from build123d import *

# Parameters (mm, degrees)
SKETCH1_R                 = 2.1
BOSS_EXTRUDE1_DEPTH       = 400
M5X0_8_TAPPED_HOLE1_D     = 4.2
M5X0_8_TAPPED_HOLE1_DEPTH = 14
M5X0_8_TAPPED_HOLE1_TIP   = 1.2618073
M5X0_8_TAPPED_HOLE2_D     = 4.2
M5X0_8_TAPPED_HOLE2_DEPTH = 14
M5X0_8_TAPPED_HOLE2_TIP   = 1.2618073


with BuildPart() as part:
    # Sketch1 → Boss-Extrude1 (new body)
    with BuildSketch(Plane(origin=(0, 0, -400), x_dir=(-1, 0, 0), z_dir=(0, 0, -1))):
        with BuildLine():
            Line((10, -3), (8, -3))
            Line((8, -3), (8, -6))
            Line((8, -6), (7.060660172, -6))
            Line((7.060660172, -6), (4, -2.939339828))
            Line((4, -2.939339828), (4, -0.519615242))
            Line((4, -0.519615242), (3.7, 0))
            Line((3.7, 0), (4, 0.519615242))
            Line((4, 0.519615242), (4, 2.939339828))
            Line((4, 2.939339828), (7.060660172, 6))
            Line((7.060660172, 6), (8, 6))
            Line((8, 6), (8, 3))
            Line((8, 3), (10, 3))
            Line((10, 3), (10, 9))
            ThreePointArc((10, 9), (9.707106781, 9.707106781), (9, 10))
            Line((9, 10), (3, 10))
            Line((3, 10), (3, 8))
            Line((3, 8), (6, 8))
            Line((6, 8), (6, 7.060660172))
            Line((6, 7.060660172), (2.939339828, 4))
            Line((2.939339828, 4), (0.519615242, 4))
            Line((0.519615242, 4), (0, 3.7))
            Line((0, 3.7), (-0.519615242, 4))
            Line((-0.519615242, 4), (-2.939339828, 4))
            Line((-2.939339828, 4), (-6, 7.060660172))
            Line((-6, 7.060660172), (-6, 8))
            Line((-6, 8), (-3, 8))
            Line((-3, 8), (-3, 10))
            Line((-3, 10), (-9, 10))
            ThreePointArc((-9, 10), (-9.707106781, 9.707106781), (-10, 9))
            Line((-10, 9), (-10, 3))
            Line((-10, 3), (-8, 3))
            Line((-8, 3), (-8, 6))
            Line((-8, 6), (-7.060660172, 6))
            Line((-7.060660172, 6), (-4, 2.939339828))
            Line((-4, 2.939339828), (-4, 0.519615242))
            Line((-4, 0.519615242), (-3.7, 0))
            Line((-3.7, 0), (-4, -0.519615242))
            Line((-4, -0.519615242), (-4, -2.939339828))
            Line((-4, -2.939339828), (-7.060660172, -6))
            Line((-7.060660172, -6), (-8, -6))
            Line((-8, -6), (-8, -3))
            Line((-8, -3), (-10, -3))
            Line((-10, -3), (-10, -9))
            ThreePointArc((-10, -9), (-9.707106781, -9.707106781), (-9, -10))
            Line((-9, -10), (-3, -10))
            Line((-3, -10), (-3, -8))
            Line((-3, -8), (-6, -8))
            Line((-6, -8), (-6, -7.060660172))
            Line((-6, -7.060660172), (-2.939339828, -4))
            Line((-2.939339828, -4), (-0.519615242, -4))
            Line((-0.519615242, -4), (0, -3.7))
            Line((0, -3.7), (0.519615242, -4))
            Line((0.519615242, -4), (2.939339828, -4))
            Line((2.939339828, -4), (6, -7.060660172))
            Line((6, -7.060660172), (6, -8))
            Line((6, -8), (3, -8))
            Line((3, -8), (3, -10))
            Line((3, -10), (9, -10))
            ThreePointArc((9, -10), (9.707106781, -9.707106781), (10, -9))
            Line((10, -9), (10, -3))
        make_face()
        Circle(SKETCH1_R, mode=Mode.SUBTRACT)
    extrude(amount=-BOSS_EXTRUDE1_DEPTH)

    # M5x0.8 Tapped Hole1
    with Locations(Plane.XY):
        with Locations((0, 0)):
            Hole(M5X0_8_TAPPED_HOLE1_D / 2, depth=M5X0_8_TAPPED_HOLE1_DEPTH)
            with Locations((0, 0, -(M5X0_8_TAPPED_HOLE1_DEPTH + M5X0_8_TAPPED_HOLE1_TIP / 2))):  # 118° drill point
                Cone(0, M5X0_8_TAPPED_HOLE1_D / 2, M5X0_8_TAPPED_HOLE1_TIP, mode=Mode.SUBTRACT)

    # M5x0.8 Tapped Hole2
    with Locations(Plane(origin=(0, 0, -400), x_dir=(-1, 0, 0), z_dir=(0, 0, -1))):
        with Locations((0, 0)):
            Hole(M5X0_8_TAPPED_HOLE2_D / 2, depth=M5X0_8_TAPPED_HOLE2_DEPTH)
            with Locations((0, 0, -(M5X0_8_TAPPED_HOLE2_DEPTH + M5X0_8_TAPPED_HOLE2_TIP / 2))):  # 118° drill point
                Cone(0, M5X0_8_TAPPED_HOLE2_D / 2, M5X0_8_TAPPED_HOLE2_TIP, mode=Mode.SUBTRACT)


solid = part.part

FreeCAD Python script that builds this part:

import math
import FreeCAD as App
import Part
import Sketcher
from FreeCAD import Vector
Q = App.Units.Quantity

doc = App.newDocument("Part")
params = doc.addObject("Spreadsheet::Sheet", "Params")
for row, (alias, value) in enumerate([
    ("sketch1_radius", "1 mm"),
    ("sketch1_diameter", "4.2 mm"),
    ("sketch1_width", "2 mm"),
    ("sketch1_width2", "6 mm"),
    ("sketch1_width3", "3 mm"),
    ("pad1_length", "400 mm"),
    ("sketch2_diameter", "4.2 mm"),
    ("hole_diameter", "4.2 mm"),
    ("hole_depth", "14 mm"),
    ("sketch3_diameter", "4.2 mm"),
    ("hole2_diameter", "4.2 mm"),
    ("hole2_depth", "14 mm"),
], start=1):
    params.set(f"A{row}", alias)
    params.set(f"B{row}", "=" + value)
    params.setAlias(f"B{row}", alias)

body = doc.addObject("PartDesign::Body", "Body")

sketch1 = body.newObject("Sketcher::SketchObject", "Sketch")
sketch1.AttachmentSupport = (doc.getObject("XY_Plane"), [""])
sketch1.MapMode = "FlatFace"
sketch1.AttachmentOffset = App.Placement(Vector(0, 0, -400), App.Rotation())
sketch1.addGeometry([
    Part.LineSegment(Vector(-10, -3, 0), Vector(-8, -3, 0)),
    Part.LineSegment(Vector(-8, -3, 0), Vector(-8, -6, 0)),
    Part.LineSegment(Vector(-8, -6, 0), Vector(-7.06066, -6, 0)),
    Part.LineSegment(Vector(-7.06066, -6, 0), Vector(-4, -2.93934, 0)),
    Part.LineSegment(Vector(-4, -2.93934, 0), Vector(-4, -0.519615, 0)),
    Part.LineSegment(Vector(-4, -0.519615, 0), Vector(-3.7, 0, 0)),
    Part.LineSegment(Vector(-3.7, 0, 0), Vector(-4, 0.519615, 0)),
    Part.LineSegment(Vector(-4, 0.519615, 0), Vector(-4, 2.93934, 0)),
    Part.LineSegment(Vector(-4, 2.93934, 0), Vector(-7.06066, 6, 0)),
    Part.LineSegment(Vector(-7.06066, 6, 0), Vector(-8, 6, 0)),
    Part.LineSegment(Vector(-8, 6, 0), Vector(-8, 3, 0)),
    Part.LineSegment(Vector(-8, 3, 0), Vector(-10, 3, 0)),
    Part.LineSegment(Vector(-10, 3, 0), Vector(-10, 9, 0)),
    Part.ArcOfCircle(Part.Circle(Vector(-9, 9, 0), Vector(0, 0, 1), 1), math.radians(90), math.radians(180)),
    Part.LineSegment(Vector(-9, 10, 0), Vector(-3, 10, 0)),
    Part.LineSegment(Vector(-3, 10, 0), Vector(-3, 8, 0)),
    Part.LineSegment(Vector(-3, 8, 0), Vector(-6, 8, 0)),
    Part.LineSegment(Vector(-6, 8, 0), Vector(-6, 7.06066, 0)),
    Part.LineSegment(Vector(-6, 7.06066, 0), Vector(-2.93934, 4, 0)),
    Part.LineSegment(Vector(-2.93934, 4, 0), Vector(-0.519615, 4, 0)),
    Part.LineSegment(Vector(-0.519615, 4, 0), Vector(0, 3.7, 0)),
    Part.LineSegment(Vector(0, 3.7, 0), Vector(0.519615, 4, 0)),
    Part.LineSegment(Vector(0.519615, 4, 0), Vector(2.93934, 4, 0)),
    Part.LineSegment(Vector(2.93934, 4, 0), Vector(6, 7.06066, 0)),
    Part.LineSegment(Vector(6, 7.06066, 0), Vector(6, 8, 0)),
    Part.LineSegment(Vector(6, 8, 0), Vector(3, 8, 0)),
    Part.LineSegment(Vector(3, 8, 0), Vector(3, 10, 0)),
    Part.LineSegment(Vector(3, 10, 0), Vector(9, 10, 0)),
    Part.ArcOfCircle(Part.Circle(Vector(9, 9, 0), Vector(0, 0, 1), 1), math.radians(0), math.radians(90)),
    Part.LineSegment(Vector(10, 9, 0), Vector(10, 3, 0)),
    Part.LineSegment(Vector(10, 3, 0), Vector(8, 3, 0)),
    Part.LineSegment(Vector(8, 3, 0), Vector(8, 6, 0)),
    Part.LineSegment(Vector(8, 6, 0), Vector(7.06066, 6, 0)),
    Part.LineSegment(Vector(7.06066, 6, 0), Vector(4, 2.93934, 0)),
    Part.LineSegment(Vector(4, 2.93934, 0), Vector(4, 0.519615, 0)),
    Part.LineSegment(Vector(4, 0.519615, 0), Vector(3.7, 0, 0)),
    Part.LineSegment(Vector(3.7, 0, 0), Vector(4, -0.519615, 0)),
    Part.LineSegment(Vector(4, -0.519615, 0), Vector(4, -2.93934, 0)),
    Part.LineSegment(Vector(4, -2.93934, 0), Vector(7.06066, -6, 0)),
    Part.LineSegment(Vector(7.06066, -6, 0), Vector(8, -6, 0)),
    Part.LineSegment(Vector(8, -6, 0), Vector(8, -3, 0)),
    Part.LineSegment(Vector(8, -3, 0), Vector(10, -3, 0)),
    Part.LineSegment(Vector(10, -3, 0), Vector(10, -9, 0)),
    Part.ArcOfCircle(Part.Circle(Vector(9, -9, 0), Vector(0, 0, 1), 1), math.radians(-90), math.radians(0)),
    Part.LineSegment(Vector(9, -10, 0), Vector(3, -10, 0)),
    Part.LineSegment(Vector(3, -10, 0), Vector(3, -8, 0)),
    Part.LineSegment(Vector(3, -8, 0), Vector(6, -8, 0)),
    Part.LineSegment(Vector(6, -8, 0), Vector(6, -7.06066, 0)),
    Part.LineSegment(Vector(6, -7.06066, 0), Vector(2.93934, -4, 0)),
    Part.LineSegment(Vector(2.93934, -4, 0), Vector(0.519615, -4, 0)),
    Part.LineSegment(Vector(0.519615, -4, 0), Vector(0, -3.7, 0)),
    Part.LineSegment(Vector(0, -3.7, 0), Vector(-0.519615, -4, 0)),
    Part.LineSegment(Vector(-0.519615, -4, 0), Vector(-2.93934, -4, 0)),
    Part.LineSegment(Vector(-2.93934, -4, 0), Vector(-6, -7.06066, 0)),
    Part.LineSegment(Vector(-6, -7.06066, 0), Vector(-6, -8, 0)),
    Part.LineSegment(Vector(-6, -8, 0), Vector(-3, -8, 0)),
    Part.LineSegment(Vector(-3, -8, 0), Vector(-3, -10, 0)),
    Part.LineSegment(Vector(-3, -10, 0), Vector(-9, -10, 0)),
    Part.ArcOfCircle(Part.Circle(Vector(-9, -9, 0), Vector(0, 0, 1), 1), math.radians(-180), math.radians(-90)),
    Part.LineSegment(Vector(-10, -9, 0), Vector(-10, -3, 0)),
    Part.Circle(Vector(0, 0, 0), Vector(0, 0, 1), 2.1),
], False)
sketch1.addConstraint([
    Sketcher.Constraint("Coincident", 0, 2, 1, 1),
    Sketcher.Constraint("Coincident", 1, 2, 2, 1),
    Sketcher.Constraint("Coincident", 2, 2, 3, 1),
    Sketcher.Constraint("Coincident", 3, 2, 4, 1),
    Sketcher.Constraint("Coincident", 4, 2, 5, 1),
    Sketcher.Constraint("Coincident", 5, 2, 6, 1),
    Sketcher.Constraint("Coincident", 6, 2, 7, 1),
    Sketcher.Constraint("Coincident", 7, 2, 8, 1),
    Sketcher.Constraint("Coincident", 8, 2, 9, 1),
    Sketcher.Constraint("Coincident", 9, 2, 10, 1),
    Sketcher.Constraint("Coincident", 10, 2, 11, 1),
    Sketcher.Constraint("Coincident", 11, 2, 12, 1),
    Sketcher.Constraint("Tangent", 12, 2, 13, 2),
    Sketcher.Constraint("Tangent", 13, 1, 14, 1),
    Sketcher.Constraint("Coincident", 14, 2, 15, 1),
    Sketcher.Constraint("Coincident", 15, 2, 16, 1),
    Sketcher.Constraint("Coincident", 16, 2, 17, 1),
    Sketcher.Constraint("Coincident", 17, 2, 18, 1),
    Sketcher.Constraint("Coincident", 18, 2, 19, 1),
    Sketcher.Constraint("Coincident", 19, 2, 20, 1),
    Sketcher.Constraint("Coincident", 20, 2, 21, 1),
    Sketcher.Constraint("Coincident", 21, 2, 22, 1),
    Sketcher.Constraint("Coincident", 22, 2, 23, 1),
    Sketcher.Constraint("Coincident", 23, 2, 24, 1),
    Sketcher.Constraint("Coincident", 24, 2, 25, 1),
    Sketcher.Constraint("Coincident", 25, 2, 26, 1),
    Sketcher.Constraint("Coincident", 26, 2, 27, 1),
    Sketcher.Constraint("Tangent", 27, 2, 28, 2),
    Sketcher.Constraint("Tangent", 28, 1, 29, 1),
    Sketcher.Constraint("Coincident", 29, 2, 30, 1),
    Sketcher.Constraint("Coincident", 30, 2, 31, 1),
    Sketcher.Constraint("Coincident", 31, 2, 32, 1),
    Sketcher.Constraint("Coincident", 32, 2, 33, 1),
    Sketcher.Constraint("Coincident", 33, 2, 34, 1),
    Sketcher.Constraint("Coincident", 34, 2, 35, 1),
    Sketcher.Constraint("Coincident", 35, 2, 36, 1),
    Sketcher.Constraint("Coincident", 36, 2, 37, 1),
    Sketcher.Constraint("Coincident", 37, 2, 38, 1),
    Sketcher.Constraint("Coincident", 38, 2, 39, 1),
    Sketcher.Constraint("Coincident", 39, 2, 40, 1),
    Sketcher.Constraint("Coincident", 40, 2, 41, 1),
    Sketcher.Constraint("Coincident", 41, 2, 42, 1),
    Sketcher.Constraint("Tangent", 42, 2, 43, 2),
    Sketcher.Constraint("Tangent", 43, 1, 44, 1),
    Sketcher.Constraint("Coincident", 44, 2, 45, 1),
    Sketcher.Constraint("Coincident", 45, 2, 46, 1),
    Sketcher.Constraint("Coincident", 46, 2, 47, 1),
    Sketcher.Constraint("Coincident", 47, 2, 48, 1),
    Sketcher.Constraint("Coincident", 48, 2, 49, 1),
    Sketcher.Constraint("Coincident", 49, 2, 50, 1),
    Sketcher.Constraint("Coincident", 50, 2, 51, 1),
    Sketcher.Constraint("Coincident", 51, 2, 52, 1),
    Sketcher.Constraint("Coincident", 52, 2, 53, 1),
    Sketcher.Constraint("Coincident", 53, 2, 54, 1),
    Sketcher.Constraint("Coincident", 54, 2, 55, 1),
    Sketcher.Constraint("Coincident", 55, 2, 56, 1),
    Sketcher.Constraint("Coincident", 56, 2, 57, 1),
    Sketcher.Constraint("Tangent", 57, 2, 58, 2),
    Sketcher.Constraint("Tangent", 58, 1, 59, 1),
    Sketcher.Constraint("Coincident", 59, 2, 0, 1),
    Sketcher.Constraint("Horizontal", 0),
    Sketcher.Constraint("Vertical", 1),
    Sketcher.Constraint("Horizontal", 2),
    Sketcher.Constraint("Vertical", 4),
    Sketcher.Constraint("Vertical", 7),
    Sketcher.Constraint("Horizontal", 9),
    Sketcher.Constraint("Vertical", 10),
    Sketcher.Constraint("Horizontal", 11),
    Sketcher.Constraint("Vertical", 12),
    Sketcher.Constraint("Horizontal", 14),
    Sketcher.Constraint("Vertical", 15),
    Sketcher.Constraint("Horizontal", 16),
    Sketcher.Constraint("Vertical", 17),
    Sketcher.Constraint("Horizontal", 19),
    Sketcher.Constraint("Horizontal", 22),
    Sketcher.Constraint("Vertical", 24),
    Sketcher.Constraint("Horizontal", 25),
    Sketcher.Constraint("Vertical", 26),
    Sketcher.Constraint("Horizontal", 27),
    Sketcher.Constraint("Vertical", 29),
    Sketcher.Constraint("Horizontal", 30),
    Sketcher.Constraint("Vertical", 31),
    Sketcher.Constraint("Horizontal", 32),
    Sketcher.Constraint("Vertical", 34),
    Sketcher.Constraint("Vertical", 37),
    Sketcher.Constraint("Horizontal", 39),
    Sketcher.Constraint("Vertical", 40),
    Sketcher.Constraint("Horizontal", 41),
    Sketcher.Constraint("Vertical", 42),
    Sketcher.Constraint("Horizontal", 44),
    Sketcher.Constraint("Vertical", 45),
    Sketcher.Constraint("Horizontal", 46),
    Sketcher.Constraint("Vertical", 47),
    Sketcher.Constraint("Horizontal", 49),
    Sketcher.Constraint("Horizontal", 52),
    Sketcher.Constraint("Vertical", 54),
    Sketcher.Constraint("Horizontal", 55),
    Sketcher.Constraint("Vertical", 56),
    Sketcher.Constraint("Horizontal", 57),
    Sketcher.Constraint("Vertical", 59),
    Sketcher.Constraint("Coincident", 60, 3, -1, 1),
    Sketcher.Constraint("Equal", 13, 28),
    Sketcher.Constraint("Equal", 28, 43),
    Sketcher.Constraint("Equal", 43, 58),
    Sketcher.Constraint("Symmetric", 13, 3, 43, 3, -1, 1),
    Sketcher.Constraint("Symmetric", 28, 3, 58, 3, -1, 1),
    Sketcher.Constraint("Symmetric", 0, 2, 30, 2, -1, 1),
    Sketcher.Constraint("Symmetric", 2, 2, 32, 2, -1, 1),
    Sketcher.Constraint("Symmetric", 3, 2, 33, 2, -1, 1),
    Sketcher.Constraint("Symmetric", 5, 2, 35, 2, -1, 1),
    Sketcher.Constraint("Symmetric", 6, 2, 36, 2, -1, 1),
    Sketcher.Constraint("Symmetric", 8, 2, 38, 2, -1, 1),
    Sketcher.Constraint("Symmetric", 10, 2, 40, 2, -1, 1),
    Sketcher.Constraint("Symmetric", 15, 2, 45, 2, -1, 1),
    Sketcher.Constraint("Symmetric", 17, 2, 47, 2, -1, 1),
    Sketcher.Constraint("Symmetric", 18, 2, 48, 2, -1, 1),
    Sketcher.Constraint("Symmetric", 20, 2, 50, 2, -1, 1),
    Sketcher.Constraint("Symmetric", 21, 2, 51, 2, -1, 1),
    Sketcher.Constraint("Symmetric", 23, 2, 53, 2, -1, 1),
    Sketcher.Constraint("Symmetric", 25, 2, 55, 2, -1, 1),
    Sketcher.Constraint("Symmetric", 13, 3, 28, 3, -2),
    Sketcher.Constraint("Symmetric", 19, 2, 21, 2, -2),
    Sketcher.Constraint("Symmetric", 17, 2, 23, 2, -2),
    Sketcher.Constraint("Symmetric", 15, 2, 25, 2, -2),
    Sketcher.Constraint("Symmetric", 10, 2, 30, 2, -2),
    Sketcher.Constraint("Symmetric", 8, 2, 32, 2, -2),
    Sketcher.Constraint("Symmetric", 7, 2, 33, 2, -2),
    Sketcher.Constraint("PointOnObject", 5, 2, -1),
    Sketcher.Constraint("PointOnObject", 20, 2, -2),
    Sketcher.Constraint("Perpendicular", 3, 8),
    Sketcher.Constraint("Parallel", 8, 18),
    Sketcher.Constraint("Perpendicular", 5, 20),
    Sketcher.Constraint("Perpendicular", 6, 21),
    Sketcher.Constraint("Perpendicular", 18, 23),
    Sketcher.Constraint("Perpendicular", 20, 35),
    Sketcher.Constraint("Perpendicular", 33, 38),
    Sketcher.Constraint("Perpendicular", 35, 50),
    Sketcher.Constraint("Perpendicular", 48, 53),
    Sketcher.Constraint("Equal", 55, 1),
    Sketcher.Constraint("Equal", 52, 4),
    Sketcher.Constraint("Equal", 57, 12),
    Sketcher.Constraint("Equal", 41, 15),
    Sketcher.Constraint("Equal", 39, 17),
    Sketcher.Constraint("Equal", 8, 18),
    Sketcher.Constraint("Equal", 6, 20),
    Sketcher.Constraint("Radius", 13, 1.0),
    Sketcher.Constraint("Diameter", 60, 4.2),
    Sketcher.Constraint("DistanceX", 0, 1, 0, 2, 2.0),
    Sketcher.Constraint("DistanceX", 14, 1, 14, 2, 6.0),
    Sketcher.Constraint("DistanceX", 16, 2, 16, 1, 3.0),
    Sketcher.Constraint("Angle", 5, Q("60 deg")),
    Sketcher.Constraint("DistanceX", 13, 3, -1, 1, 9.0),
    Sketcher.Constraint("DistanceX", 3, 2, -1, 1, 4.0),
    Sketcher.Constraint("Distance", 5, 0.6),
    Sketcher.Constraint("DistanceX", 2, 1, 2, 2, 0.93934),
])
sketch1.setExpression("Constraints[145]", "Params.sketch1_radius")
sketch1.setExpression("Constraints[146]", "Params.sketch1_diameter")
sketch1.setExpression("Constraints[147]", "Params.sketch1_width")
sketch1.setExpression("Constraints[148]", "Params.sketch1_width2")
sketch1.setExpression("Constraints[149]", "Params.sketch1_width3")
pad1 = body.newObject("PartDesign::Pad", "Pad")
pad1.Profile = sketch1
pad1.setExpression("Length", "Params.pad1_length")

sketch2 = body.newObject("Sketcher::SketchObject", "Sketch001")
sketch2.AttachmentSupport = (doc.getObject("XY_Plane"), [""])
sketch2.MapMode = "FlatFace"
sketch2.addGeometry(Part.Circle(Vector(0, 0, 0), Vector(0, 0, 1), 2.1), False)
sketch2.addConstraint([
    Sketcher.Constraint("Coincident", 0, 3, -1, 1),
    Sketcher.Constraint("Diameter", 0, 4.2),
])
sketch2.setExpression("Constraints[1]", "Params.sketch2_diameter")
doc.recompute()
hole = body.newObject("PartDesign::Hole", "Hole")
hole.Profile = sketch2
hole.ThreadType = "None"
hole.setExpression("Diameter", "Params.hole_diameter")
hole.DepthType = "Dimension"
hole.setExpression("Depth", "Params.hole_depth")
hole.DrillPoint = "Angled"
hole.DrillPointAngle = 118

sketch3 = body.newObject("Sketcher::SketchObject", "Sketch002")
sketch3.AttachmentSupport = (doc.getObject("XY_Plane"), [""])
sketch3.MapMode = "FlatFace"
sketch3.AttachmentOffset = App.Placement(Vector(0, 0, -400), App.Rotation())
sketch3.addGeometry(Part.Circle(Vector(0, 0, 0), Vector(0, 0, 1), 2.1), False)
sketch3.addConstraint([
    Sketcher.Constraint("Coincident", 0, 3, -1, 1),
    Sketcher.Constraint("Diameter", 0, 4.2),
])
sketch3.setExpression("Constraints[1]", "Params.sketch3_diameter")
doc.recompute()
hole2 = body.newObject("PartDesign::Hole", "Hole001")
hole2.Profile = sketch3
hole2.ThreadType = "None"
hole2.setExpression("Diameter", "Params.hole2_diameter")
hole2.DepthType = "Dimension"
hole2.setExpression("Depth", "Params.hole2_depth")
hole2.DrillPoint = "Angled"
hole2.DrillPointAngle = 118
hole2.Reversed = True

doc.recompute()
